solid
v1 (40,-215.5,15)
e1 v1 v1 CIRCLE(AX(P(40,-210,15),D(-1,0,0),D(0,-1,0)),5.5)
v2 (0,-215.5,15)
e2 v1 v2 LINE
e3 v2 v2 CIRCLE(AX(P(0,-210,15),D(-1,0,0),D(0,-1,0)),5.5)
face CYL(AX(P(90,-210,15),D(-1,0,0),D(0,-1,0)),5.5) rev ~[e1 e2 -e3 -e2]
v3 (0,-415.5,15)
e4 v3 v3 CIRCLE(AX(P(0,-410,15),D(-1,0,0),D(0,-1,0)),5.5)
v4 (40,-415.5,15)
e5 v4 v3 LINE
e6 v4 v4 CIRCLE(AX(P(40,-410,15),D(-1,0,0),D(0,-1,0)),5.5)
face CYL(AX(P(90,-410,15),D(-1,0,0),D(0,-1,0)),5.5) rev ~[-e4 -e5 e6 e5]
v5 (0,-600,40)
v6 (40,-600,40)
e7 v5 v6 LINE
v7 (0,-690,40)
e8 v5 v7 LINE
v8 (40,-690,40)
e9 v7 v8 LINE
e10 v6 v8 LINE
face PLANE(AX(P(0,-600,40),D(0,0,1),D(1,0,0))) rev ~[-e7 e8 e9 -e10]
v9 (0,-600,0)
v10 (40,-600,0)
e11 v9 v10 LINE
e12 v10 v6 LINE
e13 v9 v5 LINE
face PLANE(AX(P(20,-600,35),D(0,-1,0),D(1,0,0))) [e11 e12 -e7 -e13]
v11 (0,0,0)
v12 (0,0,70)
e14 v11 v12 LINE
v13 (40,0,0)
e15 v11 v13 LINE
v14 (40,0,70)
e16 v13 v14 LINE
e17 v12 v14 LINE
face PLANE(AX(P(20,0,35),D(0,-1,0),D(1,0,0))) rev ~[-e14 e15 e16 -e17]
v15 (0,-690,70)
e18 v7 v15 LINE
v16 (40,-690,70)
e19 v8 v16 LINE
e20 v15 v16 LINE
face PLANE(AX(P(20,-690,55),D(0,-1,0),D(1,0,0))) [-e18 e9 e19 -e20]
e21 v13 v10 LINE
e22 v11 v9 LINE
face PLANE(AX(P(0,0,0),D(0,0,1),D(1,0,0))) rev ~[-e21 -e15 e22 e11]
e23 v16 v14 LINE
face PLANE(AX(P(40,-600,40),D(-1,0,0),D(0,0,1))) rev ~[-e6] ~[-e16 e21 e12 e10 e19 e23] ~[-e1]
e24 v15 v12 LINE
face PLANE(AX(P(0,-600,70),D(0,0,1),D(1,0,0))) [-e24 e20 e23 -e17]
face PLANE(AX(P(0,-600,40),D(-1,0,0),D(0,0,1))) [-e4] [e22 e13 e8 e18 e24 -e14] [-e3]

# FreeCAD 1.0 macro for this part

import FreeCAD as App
import Part
import Sketcher
from FreeCAD import Vector


def add_polygon(sketch, points):
    """Adds a closed chain of lines whose ends are joined by coincident constraints."""
    first, n = sketch.GeometryCount, len(points)
    for a, b in zip(points, points[1:] + points[:1]):
        sketch.addGeometry(Part.LineSegment(App.Vector(*a, 0), App.Vector(*b, 0)), False)
    for i in range(n):
        sketch.addConstraint(Sketcher.Constraint("Coincident", first + i, 2, first + (i + 1) % n, 1))

doc = App.newDocument("Part")
body = doc.addObject("PartDesign::Body", "Body")

# Sketch on XZ plane
sketch1 = body.newObject("Sketcher::SketchObject", "Sketch")
sketch1.AttachmentSupport = (doc.getObject("XZ_Plane"), [""])
sketch1.MapMode = "FlatFace"
add_polygon(sketch1, [(0, 70), (0, 0), (40, 0), (40, 70)])  # lines 0-3
sketch1.addConstraint([
    Sketcher.Constraint("Vertical", 0),
    Sketcher.Constraint("Horizontal", 1),
    Sketcher.Constraint("Vertical", 2),
    Sketcher.Constraint("Horizontal", 3),
    Sketcher.Constraint("Coincident", 0, 2, -1, 1),
    Sketcher.Constraint("DistanceX", 1, 1, 1, 2, 40.0),
    Sketcher.Constraint("DistanceY", 0, 2, 0, 1, 70.0),
])
pad1 = body.newObject("PartDesign::Pad", "Pad")
pad1.Profile = sketch1
pad1.Length = 600

# Sketch on YZ plane
sketch2 = body.newObject("Sketcher::SketchObject", "Sketch001")
sketch2.AttachmentSupport = (doc.getObject("YZ_Plane"), [""])
sketch2.MapMode = "FlatFace"
sketch2.AttachmentOffset = App.Placement(Vector(0, 0, 40), App.Rotation())
sketch2.addGeometry([
    Part.Circle(Vector(-410, 15, 0), Vector(0, 0, 1), 6),
    Part.Circle(Vector(-210, 15, 0), Vector(0, 0, 1), 6),
], False)
sketch2.addConstraint([
    Sketcher.Constraint("Equal", 0, 1),
    Sketcher.Constraint("Horizontal", 0, 3, 1, 3),
    Sketcher.Constraint("Diameter", 0, 11.0),
    Sketcher.Constraint("DistanceX", 0, 3, -1, 1, 410.0),
    Sketcher.Constraint("DistanceY", -1, 1, 0, 3, 15.0),
    Sketcher.Constraint("DistanceX", 1, 3, -1, 1, 210.0),
])
doc.recompute()
hole = body.newObject("PartDesign::Hole", "Hole")
hole.Profile = sketch2
hole.ThreadType = "None"
hole.Diameter = 11
hole.DepthType = "Dimension"
hole.Depth = 50
hole.DrillPoint = "Flat"

# Sketch on XZ plane
sketch3 = body.newObject("Sketcher::SketchObject", "Sketch002")
sketch3.AttachmentSupport = (doc.getObject("XZ_Plane"), [""])
sketch3.MapMode = "FlatFace"
sketch3.AttachmentOffset = App.Placement(Vector(0, 0, 600), App.Rotation())
add_polygon(sketch3, [(0, 70), (0, 40), (40, 40), (40, 70)])  # lines 0-3
sketch3.addConstraint([
    Sketcher.Constraint("Vertical", 0),
    Sketcher.Constraint("Horizontal", 1),
    Sketcher.Constraint("Vertical", 2),
    Sketcher.Constraint("Horizontal", 3),
    Sketcher.Constraint("PointOnObject", 0, 2, -2),
    Sketcher.Constraint("DistanceX", 1, 1, 1, 2, 40.0),
    Sketcher.Constraint("DistanceY", 0, 2, 0, 1, 30.0),
    Sketcher.Constraint("DistanceY", -1, 1, 0, 2, 40.0),
])
pad2 = body.newObject("PartDesign::Pad", "Pad001")
pad2.Profile = sketch3
pad2.Length = 90

doc.recompute()
